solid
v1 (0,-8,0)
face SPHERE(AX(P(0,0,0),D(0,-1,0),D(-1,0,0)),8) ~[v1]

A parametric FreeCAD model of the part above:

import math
import FreeCAD as App
import Part
import Sketcher

V = App.Vector
Q = App.Units.Quantity

doc = App.newDocument("Part")
body = doc.addObject("PartDesign::Body", "Body")

# Sketch on XY plane
sketch1 = body.newObject("Sketcher::SketchObject", "Sketch")
sketch1.AttachmentSupport = (doc.getObject("XY_Plane"), [""])
sketch1.MapMode = "FlatFace"
sketch1.addGeometry(Part.LineSegment(V(0, -8, 0), V(0, 8, 0)), False)
sketch1.addGeometry(Part.ArcOfCircle(Part.Circle(V(0, 0, 0), V(0, 0, 1), 8), math.radians(90), math.radians(270)), False)
sketch1.addConstraint(Sketcher.Constraint("Coincident", 0, 1, 1, 2))
sketch1.addConstraint(Sketcher.Constraint("Coincident", 1, 1, 0, 2))
sketch1.addConstraint(Sketcher.Constraint("Vertical", 0))
sketch1.addConstraint(Sketcher.Constraint("Coincident", 1, 3, -1, 1))
sketch1.addConstraint(Sketcher.Constraint("PointOnObject", 0, 1, -2))
sketch1.addConstraint(Sketcher.Constraint("Radius", 1, Q("8 mm")))
revolution = body.newObject("PartDesign::Revolution", "Revolution")
revolution.Profile = sketch1
revolution.ReferenceAxis = (sketch1, ["V_Axis"])
revolution.Angle = 360

doc.recompute()
